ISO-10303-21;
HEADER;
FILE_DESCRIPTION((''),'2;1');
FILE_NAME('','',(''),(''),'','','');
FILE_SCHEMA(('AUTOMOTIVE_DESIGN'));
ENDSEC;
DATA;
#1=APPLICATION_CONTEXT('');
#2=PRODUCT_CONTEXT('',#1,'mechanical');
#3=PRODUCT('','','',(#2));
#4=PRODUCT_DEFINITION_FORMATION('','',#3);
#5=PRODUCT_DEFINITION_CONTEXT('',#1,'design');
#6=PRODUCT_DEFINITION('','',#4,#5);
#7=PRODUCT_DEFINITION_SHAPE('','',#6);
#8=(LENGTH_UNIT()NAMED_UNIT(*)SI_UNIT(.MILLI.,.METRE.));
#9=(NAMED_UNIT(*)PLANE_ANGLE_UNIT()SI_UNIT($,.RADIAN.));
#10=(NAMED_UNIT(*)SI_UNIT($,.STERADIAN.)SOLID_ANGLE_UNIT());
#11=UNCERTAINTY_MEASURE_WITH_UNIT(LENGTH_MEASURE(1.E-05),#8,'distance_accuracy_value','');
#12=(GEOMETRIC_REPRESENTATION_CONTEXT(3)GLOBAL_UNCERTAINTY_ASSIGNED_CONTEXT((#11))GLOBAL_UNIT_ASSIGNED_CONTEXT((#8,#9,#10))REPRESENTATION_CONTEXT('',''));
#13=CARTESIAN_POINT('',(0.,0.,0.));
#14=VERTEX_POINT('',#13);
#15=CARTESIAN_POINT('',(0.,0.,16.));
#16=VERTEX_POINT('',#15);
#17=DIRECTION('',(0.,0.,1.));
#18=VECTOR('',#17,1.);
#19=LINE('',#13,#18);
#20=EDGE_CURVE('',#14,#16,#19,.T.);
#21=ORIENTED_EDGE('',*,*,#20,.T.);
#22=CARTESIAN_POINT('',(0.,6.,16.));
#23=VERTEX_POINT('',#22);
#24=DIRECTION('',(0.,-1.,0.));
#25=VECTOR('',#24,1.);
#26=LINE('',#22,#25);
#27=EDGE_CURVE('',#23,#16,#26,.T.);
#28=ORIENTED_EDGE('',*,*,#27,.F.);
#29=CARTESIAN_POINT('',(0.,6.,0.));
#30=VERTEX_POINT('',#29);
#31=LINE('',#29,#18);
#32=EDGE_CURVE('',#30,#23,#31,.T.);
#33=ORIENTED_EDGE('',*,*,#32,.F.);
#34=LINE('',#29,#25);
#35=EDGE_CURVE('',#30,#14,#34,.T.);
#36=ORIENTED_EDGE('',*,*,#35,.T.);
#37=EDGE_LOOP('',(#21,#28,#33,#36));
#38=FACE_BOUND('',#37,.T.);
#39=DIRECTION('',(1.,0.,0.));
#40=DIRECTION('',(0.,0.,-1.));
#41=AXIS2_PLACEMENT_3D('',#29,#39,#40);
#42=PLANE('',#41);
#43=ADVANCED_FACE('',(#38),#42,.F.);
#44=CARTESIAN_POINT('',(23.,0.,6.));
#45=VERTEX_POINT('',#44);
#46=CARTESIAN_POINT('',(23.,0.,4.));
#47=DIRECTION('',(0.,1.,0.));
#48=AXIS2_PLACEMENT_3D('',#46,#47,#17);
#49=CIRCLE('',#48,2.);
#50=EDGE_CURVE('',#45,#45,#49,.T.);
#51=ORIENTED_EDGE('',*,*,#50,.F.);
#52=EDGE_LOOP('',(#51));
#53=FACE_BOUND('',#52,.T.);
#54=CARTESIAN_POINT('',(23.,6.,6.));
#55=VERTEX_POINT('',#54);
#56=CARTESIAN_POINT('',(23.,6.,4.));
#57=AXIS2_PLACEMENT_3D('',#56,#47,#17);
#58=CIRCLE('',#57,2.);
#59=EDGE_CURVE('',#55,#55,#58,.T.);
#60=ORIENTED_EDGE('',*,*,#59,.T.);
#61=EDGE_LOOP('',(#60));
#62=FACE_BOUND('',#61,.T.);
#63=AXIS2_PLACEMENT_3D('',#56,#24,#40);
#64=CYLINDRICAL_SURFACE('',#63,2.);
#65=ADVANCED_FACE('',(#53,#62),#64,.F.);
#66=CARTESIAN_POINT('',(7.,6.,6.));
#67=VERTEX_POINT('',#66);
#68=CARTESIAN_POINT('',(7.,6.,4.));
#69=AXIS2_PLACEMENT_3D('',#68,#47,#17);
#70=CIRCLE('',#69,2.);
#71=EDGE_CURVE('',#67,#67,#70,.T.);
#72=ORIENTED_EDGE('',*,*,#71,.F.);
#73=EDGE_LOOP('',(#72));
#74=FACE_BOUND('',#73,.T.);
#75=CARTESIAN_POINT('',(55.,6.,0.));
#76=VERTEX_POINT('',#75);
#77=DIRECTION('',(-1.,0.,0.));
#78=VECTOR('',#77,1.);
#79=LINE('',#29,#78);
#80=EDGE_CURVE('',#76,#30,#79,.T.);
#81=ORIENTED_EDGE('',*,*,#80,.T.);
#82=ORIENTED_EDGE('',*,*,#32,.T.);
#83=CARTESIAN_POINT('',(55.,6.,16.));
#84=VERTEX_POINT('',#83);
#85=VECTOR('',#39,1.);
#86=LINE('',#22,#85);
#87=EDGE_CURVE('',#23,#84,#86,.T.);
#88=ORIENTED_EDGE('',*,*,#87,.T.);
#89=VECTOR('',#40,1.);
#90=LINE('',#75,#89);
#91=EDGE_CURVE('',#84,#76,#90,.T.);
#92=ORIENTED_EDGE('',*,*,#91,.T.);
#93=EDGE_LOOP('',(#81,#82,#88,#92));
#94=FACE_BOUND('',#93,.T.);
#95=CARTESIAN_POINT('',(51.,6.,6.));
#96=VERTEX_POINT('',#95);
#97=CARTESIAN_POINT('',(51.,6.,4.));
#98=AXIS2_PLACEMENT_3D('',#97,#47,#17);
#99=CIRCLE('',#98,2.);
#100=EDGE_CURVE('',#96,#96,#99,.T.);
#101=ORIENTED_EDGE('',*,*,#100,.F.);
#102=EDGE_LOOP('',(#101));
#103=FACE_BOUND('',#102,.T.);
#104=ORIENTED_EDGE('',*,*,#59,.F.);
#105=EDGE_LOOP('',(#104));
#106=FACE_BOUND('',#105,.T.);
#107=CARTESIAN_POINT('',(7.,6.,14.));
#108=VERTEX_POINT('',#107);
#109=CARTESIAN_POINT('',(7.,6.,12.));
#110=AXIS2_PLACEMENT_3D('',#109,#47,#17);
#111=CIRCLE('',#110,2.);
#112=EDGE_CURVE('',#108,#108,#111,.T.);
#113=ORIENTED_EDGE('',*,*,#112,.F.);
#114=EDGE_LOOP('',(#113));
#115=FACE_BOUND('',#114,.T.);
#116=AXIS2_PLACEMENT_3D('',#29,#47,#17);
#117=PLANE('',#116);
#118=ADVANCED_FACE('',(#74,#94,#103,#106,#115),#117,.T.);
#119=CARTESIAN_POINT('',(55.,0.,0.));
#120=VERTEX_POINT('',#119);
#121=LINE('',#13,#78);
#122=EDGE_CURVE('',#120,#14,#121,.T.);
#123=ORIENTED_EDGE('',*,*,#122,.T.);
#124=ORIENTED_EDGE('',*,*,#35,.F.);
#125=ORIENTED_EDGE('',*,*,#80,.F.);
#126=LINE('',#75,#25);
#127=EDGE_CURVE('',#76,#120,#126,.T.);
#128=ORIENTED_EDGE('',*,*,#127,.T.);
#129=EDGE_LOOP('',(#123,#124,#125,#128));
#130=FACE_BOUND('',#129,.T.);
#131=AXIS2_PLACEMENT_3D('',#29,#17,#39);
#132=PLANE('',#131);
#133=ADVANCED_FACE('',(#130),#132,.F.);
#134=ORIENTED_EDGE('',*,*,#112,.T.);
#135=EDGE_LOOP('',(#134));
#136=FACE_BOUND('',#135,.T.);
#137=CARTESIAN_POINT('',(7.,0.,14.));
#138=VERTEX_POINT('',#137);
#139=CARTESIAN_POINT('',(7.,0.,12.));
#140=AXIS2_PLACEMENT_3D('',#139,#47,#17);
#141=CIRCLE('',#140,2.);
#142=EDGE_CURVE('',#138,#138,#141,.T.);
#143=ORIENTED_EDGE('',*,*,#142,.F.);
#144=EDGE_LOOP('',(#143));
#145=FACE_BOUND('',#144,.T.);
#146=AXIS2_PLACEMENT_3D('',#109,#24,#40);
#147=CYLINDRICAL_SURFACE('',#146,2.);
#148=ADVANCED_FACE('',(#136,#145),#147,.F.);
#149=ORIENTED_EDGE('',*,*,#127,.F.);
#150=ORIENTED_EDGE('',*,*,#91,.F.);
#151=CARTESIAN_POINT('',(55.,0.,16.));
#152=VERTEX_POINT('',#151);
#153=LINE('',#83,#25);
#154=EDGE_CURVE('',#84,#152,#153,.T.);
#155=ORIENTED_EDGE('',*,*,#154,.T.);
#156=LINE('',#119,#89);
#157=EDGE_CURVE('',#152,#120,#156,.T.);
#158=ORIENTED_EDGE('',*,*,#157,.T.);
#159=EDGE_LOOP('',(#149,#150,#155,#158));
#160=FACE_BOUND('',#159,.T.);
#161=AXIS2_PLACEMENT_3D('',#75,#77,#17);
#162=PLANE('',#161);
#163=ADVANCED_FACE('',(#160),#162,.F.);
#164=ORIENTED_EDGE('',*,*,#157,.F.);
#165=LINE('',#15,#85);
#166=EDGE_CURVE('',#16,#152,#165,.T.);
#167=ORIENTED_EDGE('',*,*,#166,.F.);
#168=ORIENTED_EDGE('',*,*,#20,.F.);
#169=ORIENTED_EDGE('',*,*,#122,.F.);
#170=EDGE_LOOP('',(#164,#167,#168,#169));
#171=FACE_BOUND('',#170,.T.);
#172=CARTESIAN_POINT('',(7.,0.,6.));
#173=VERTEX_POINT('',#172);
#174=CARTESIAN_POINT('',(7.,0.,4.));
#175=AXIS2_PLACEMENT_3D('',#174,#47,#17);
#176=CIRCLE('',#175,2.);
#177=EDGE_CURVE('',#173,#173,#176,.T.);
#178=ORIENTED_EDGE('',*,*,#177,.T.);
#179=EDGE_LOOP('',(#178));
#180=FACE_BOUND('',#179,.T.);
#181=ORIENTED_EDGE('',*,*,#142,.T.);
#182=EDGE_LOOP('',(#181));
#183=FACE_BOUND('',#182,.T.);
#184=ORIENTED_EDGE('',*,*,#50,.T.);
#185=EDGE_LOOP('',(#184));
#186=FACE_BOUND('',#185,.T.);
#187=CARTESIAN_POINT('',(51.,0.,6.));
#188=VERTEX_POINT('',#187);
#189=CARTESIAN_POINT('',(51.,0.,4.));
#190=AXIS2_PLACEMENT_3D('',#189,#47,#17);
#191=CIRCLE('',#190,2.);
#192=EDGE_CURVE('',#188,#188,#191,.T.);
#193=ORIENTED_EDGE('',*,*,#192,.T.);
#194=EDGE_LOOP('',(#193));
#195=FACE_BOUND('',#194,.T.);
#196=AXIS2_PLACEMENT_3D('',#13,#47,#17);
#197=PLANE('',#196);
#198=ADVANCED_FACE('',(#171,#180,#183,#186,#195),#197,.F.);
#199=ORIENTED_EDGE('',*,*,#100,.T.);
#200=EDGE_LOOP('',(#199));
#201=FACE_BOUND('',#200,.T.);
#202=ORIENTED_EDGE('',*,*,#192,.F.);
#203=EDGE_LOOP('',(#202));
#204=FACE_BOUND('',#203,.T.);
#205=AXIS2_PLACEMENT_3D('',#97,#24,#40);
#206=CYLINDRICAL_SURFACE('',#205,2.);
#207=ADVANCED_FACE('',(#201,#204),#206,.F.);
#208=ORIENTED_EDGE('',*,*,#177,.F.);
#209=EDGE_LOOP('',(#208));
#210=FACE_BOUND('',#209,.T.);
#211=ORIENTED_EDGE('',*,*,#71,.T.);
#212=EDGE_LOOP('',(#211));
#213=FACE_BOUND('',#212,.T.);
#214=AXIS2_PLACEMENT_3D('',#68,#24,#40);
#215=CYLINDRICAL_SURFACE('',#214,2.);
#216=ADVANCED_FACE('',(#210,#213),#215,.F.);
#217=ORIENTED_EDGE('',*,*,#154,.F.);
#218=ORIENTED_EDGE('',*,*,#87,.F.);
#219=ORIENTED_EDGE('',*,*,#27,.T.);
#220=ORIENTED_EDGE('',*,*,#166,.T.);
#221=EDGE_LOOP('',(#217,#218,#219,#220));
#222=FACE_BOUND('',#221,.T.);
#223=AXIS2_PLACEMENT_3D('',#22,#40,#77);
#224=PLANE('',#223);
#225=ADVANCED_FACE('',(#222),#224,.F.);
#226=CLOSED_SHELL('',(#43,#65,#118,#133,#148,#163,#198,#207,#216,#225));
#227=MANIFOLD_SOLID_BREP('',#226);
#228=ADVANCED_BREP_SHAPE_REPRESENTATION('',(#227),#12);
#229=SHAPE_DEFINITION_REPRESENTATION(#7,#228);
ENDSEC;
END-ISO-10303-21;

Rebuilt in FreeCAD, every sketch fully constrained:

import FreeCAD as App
import Part
import Sketcher
from FreeCAD import Vector

doc = App.newDocument("Part")
body = doc.addObject("PartDesign::Body", "Body")

# Sketch on XZ plane
sketch1 = doc.addObject("Sketcher::SketchObject", "Sketch")
body.addObject(sketch1)
sketch1.AttachmentSupport = (doc.XZ_Plane, [""])
sketch1.MapMode = "FlatFace"
sketch1.addGeometry([
    Part.LineSegment(Vector(0, 0, 0), Vector(0, 16, 0)),  # 0
    Part.LineSegment(Vector(0, 16, 0), Vector(55, 16, 0)),  # 1
    Part.LineSegment(Vector(55, 16, 0), Vector(55, 0, 0)),  # 2
    Part.LineSegment(Vector(55, 0, 0), Vector(0, 0, 0)),  # 3
    Part.Circle(Vector(7, 12, 0), Vector(0, 0, 1), 2),  # 4
    Part.Circle(Vector(7, 4, 0), Vector(0, 0, 1), 2),  # 5
    Part.Circle(Vector(23, 4, 0), Vector(0, 0, 1), 2),  # 6
    Part.Circle(Vector(51, 4, 0), Vector(0, 0, 1), 2),  # 7
], False)
sketch1.addConstraint([
    Sketcher.Constraint("Coincident", 0, 2, 1, 1),
    Sketcher.Constraint("Coincident", 1, 2, 2, 1),
    Sketcher.Constraint("Coincident", 2, 2, 3, 1),
    Sketcher.Constraint("Coincident", 3, 2, 0, 1),
    Sketcher.Constraint("Vertical", 0),
    Sketcher.Constraint("Horizontal", 1),
    Sketcher.Constraint("Vertical", 2),
    Sketcher.Constraint("Horizontal", 3),
    Sketcher.Constraint("Coincident", 3, 2, -1, 1),
    Sketcher.Constraint("Equal", 4, 5),
    Sketcher.Constraint("Equal", 5, 6),
    Sketcher.Constraint("Equal", 6, 7),
    Sketcher.Constraint("Horizontal", 5, 3, 6, 3),
    Sketcher.Constraint("Horizontal", 6, 3, 7, 3),
    Sketcher.Constraint("Vertical", 4, 3, 5, 3),
    Sketcher.Constraint("Diameter", 4, 4.0),
    Sketcher.Constraint("DistanceX", 1, 1, 1, 2, 55.0),
    Sketcher.Constraint("DistanceY", 0, 1, 0, 2, 16.0),
    Sketcher.Constraint("DistanceX", -1, 1, 4, 3, 7.0),
    Sketcher.Constraint("DistanceY", -1, 1, 4, 3, 12.0),
    Sketcher.Constraint("DistanceY", -1, 1, 5, 3, 4.0),
    Sketcher.Constraint("DistanceX", -1, 1, 6, 3, 23.0),
    Sketcher.Constraint("DistanceX", -1, 1, 7, 3, 51.0),
])
pad1 = doc.addObject("PartDesign::Pad", "Pad")
body.addObject(pad1)
pad1.Profile = sketch1
pad1.Length = 6
pad1.Reversed = True

doc.recompute()
